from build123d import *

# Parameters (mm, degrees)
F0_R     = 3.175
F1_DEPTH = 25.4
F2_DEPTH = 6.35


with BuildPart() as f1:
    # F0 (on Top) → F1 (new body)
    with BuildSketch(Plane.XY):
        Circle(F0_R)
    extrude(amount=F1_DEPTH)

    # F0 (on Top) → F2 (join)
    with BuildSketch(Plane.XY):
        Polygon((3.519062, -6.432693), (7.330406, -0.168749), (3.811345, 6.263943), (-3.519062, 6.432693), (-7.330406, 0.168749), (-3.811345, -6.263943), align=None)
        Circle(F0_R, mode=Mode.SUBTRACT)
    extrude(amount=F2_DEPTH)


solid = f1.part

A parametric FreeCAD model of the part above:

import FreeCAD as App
import Part
import Sketcher

V = App.Vector
Q = App.Units.Quantity

doc = App.newDocument("Part")
body = doc.addObject("PartDesign::Body", "Body")

# Sketch on XY plane
sketch1 = body.newObject("Sketcher::SketchObject", "Sketch")
sketch1.AttachmentSupport = (doc.getObject("XY_Plane"), [""])
sketch1.MapMode = "FlatFace"
sketch1.addGeometry(Part.Circle(V(0, 0, 0), V(0, 0, 1), 3.2), False)
sketch1.addConstraint(Sketcher.Constraint("Coincident", 0, 3, -1, 1))
sketch1.addConstraint(Sketcher.Constraint("Diameter", 0, Q("0.25 in")))
pad1 = body.newObject("PartDesign::Pad", "Pad")
pad1.Profile = sketch1
pad1.Length = Q("1 in")

# Sketch on XY plane
sketch2 = body.newObject("Sketcher::SketchObject", "Sketch001")
sketch2.AttachmentSupport = (doc.getObject("XY_Plane"), [""])
sketch2.MapMode = "FlatFace"
sketch2.addGeometry(Part.LineSegment(V(3.5, -6.4, 0), V(7.3, -0.2, 0)), False)
sketch2.addGeometry(Part.LineSegment(V(7.3, -0.2, 0), V(3.8, 6.3, 0)), False)
sketch2.addGeometry(Part.LineSegment(V(3.8, 6.3, 0), V(-3.5, 6.4, 0)), False)
sketch2.addGeometry(Part.LineSegment(V(-3.5, 6.4, 0), V(-7.3, 0.2, 0)), False)
sketch2.addGeometry(Part.LineSegment(V(-7.3, 0.2, 0), V(-3.8, -6.3, 0)), False)
sketch2.addGeometry(Part.LineSegment(V(-3.8, -6.3, 0), V(3.5, -6.4, 0)), False)
sketch2.addGeometry(Part.Circle(V(0, 0, 0), V(0, 0, 1), 3.2), False)
sketch2.addConstraint(Sketcher.Constraint("Coincident", 0, 2, 1, 1))
sketch2.addConstraint(Sketcher.Constraint("Coincident", 1, 2, 2, 1))
sketch2.addConstraint(Sketcher.Constraint("Coincident", 2, 2, 3, 1))
sketch2.addConstraint(Sketcher.Constraint("Coincident", 3, 2, 4, 1))
sketch2.addConstraint(Sketcher.Constraint("Coincident", 4, 2, 5, 1))
sketch2.addConstraint(Sketcher.Constraint("Coincident", 5, 2, 0, 1))
sketch2.addConstraint(Sketcher.Constraint("Coincident", 6, 3, -1, 1))
sketch2.addConstraint(Sketcher.Constraint("Symmetric", 0, 2, 3, 2, -1, 1))
sketch2.addConstraint(Sketcher.Constraint("Symmetric", 1, 2, 4, 2, -1, 1))
sketch2.addConstraint(Sketcher.Constraint("Symmetric", 2, 2, 5, 2, -1, 1))
sketch2.addConstraint(Sketcher.Constraint("Equal", 0, 1))
sketch2.addConstraint(Sketcher.Constraint("Equal", 1, 2))
sketch2.addConstraint(Sketcher.Constraint("Diameter", 6, Q("0.25 in")))
sketch2.addConstraint(Sketcher.Constraint("Distance", 0, 7.332349))
sketch2.addConstraint(Sketcher.Constraint("DistanceY", 0, 2, -1, 1, 0.168749))
sketch2.addConstraint(Sketcher.Constraint("DistanceX", 2, 2, -1, 1, 3.519062))
sketch2.addConstraint(Sketcher.Constraint("DistanceX", 1, 2, 0, 2, 3.519061))
pad2 = body.newObject("PartDesign::Pad", "Pad001")
pad2.Profile = sketch2
pad2.Length = Q("0.25 in")

doc.recompute()
